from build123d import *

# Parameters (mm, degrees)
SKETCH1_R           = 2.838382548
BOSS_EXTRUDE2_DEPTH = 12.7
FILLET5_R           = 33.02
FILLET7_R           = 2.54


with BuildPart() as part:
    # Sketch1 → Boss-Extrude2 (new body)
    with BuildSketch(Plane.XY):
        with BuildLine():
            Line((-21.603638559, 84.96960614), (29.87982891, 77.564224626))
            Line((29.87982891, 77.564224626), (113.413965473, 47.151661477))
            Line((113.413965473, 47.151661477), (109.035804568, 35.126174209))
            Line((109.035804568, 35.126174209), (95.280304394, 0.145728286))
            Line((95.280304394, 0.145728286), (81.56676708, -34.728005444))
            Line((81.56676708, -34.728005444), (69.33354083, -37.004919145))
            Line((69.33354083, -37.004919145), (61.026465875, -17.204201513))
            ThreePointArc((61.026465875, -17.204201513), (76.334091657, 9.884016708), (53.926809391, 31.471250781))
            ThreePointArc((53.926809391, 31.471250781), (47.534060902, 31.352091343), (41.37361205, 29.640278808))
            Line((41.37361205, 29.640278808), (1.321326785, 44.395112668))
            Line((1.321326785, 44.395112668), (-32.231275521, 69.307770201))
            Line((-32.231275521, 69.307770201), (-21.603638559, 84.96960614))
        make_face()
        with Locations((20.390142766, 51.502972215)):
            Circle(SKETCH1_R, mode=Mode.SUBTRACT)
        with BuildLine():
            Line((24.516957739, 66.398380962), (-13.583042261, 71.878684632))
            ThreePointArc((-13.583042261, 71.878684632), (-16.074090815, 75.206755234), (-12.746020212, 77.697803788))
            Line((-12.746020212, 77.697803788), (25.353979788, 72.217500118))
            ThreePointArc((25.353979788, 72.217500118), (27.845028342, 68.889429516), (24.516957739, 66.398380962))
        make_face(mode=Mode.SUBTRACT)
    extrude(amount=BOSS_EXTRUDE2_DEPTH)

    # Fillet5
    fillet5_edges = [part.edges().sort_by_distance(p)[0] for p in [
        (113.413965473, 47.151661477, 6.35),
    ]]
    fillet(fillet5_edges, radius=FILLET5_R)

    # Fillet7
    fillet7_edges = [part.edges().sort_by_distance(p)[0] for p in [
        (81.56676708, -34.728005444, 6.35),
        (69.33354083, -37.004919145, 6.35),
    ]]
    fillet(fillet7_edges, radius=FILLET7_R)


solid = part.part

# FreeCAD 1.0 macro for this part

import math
import FreeCAD as App
import Part
import Sketcher
from FreeCAD import Vector
Q = App.Units.Quantity


def edges_at(feature, points):
    """Names of the edges that pass closest to the given points."""
    edges = feature.Shape.Edges
    near = lambda p: min(range(len(edges)), key=lambda i: edges[i].distToShape(Part.Vertex(*p))[0])
    return sorted({f"Edge{near(p) + 1}" for p in points})

doc = App.newDocument("Part")
body = doc.addObject("PartDesign::Body", "Body")

# Sketch on XY plane
sketch1 = body.newObject("Sketcher::SketchObject", "Sketch")
sketch1.AttachmentSupport = (doc.getObject("XY_Plane"), [""])
sketch1.MapMode = "FlatFace"
sketch1.addGeometry([
    Part.LineSegment(Vector(29.879829, 77.564225, 0), Vector(-21.603639, 84.969606, 0)),  # 0
    Part.LineSegment(Vector(-21.603639, 84.969606, 0), Vector(-32.231276, 69.30777, 0)),  # 1
    Part.LineSegment(Vector(-32.231276, 69.30777, 0), Vector(1.321327, 44.395113, 0)),  # 2
    Part.LineSegment(Vector(1.321327, 44.395113, 0), Vector(41.373612, 29.640279, 0)),  # 3
    Part.ArcOfCircle(Part.Circle(Vector(51.200039, 6.218039, 0), Vector(0, 0, 1), 25.4), math.radians(83.83724), math.radians(112.759707)),  # 4
    Part.ArcOfCircle(Part.Circle(Vector(51.200039, 6.218039, 0), Vector(0, 0, 1), 25.4), math.radians(-67.240293), math.radians(83.83724)),  # 5
    Part.LineSegment(Vector(61.026466, -17.204202, 0), Vector(69.333541, -37.004919, 0)),  # 6
    Part.LineSegment(Vector(69.333541, -37.004919, 0), Vector(81.566767, -34.728005, 0)),  # 7
    Part.LineSegment(Vector(81.566767, -34.728005, 0), Vector(95.280304, 0.145728, 0)),  # 8
    Part.LineSegment(Vector(95.280304, 0.145728, 0), Vector(109.035805, 35.126174, 0)),  # 9
    Part.LineSegment(Vector(109.035805, 35.126174, 0), Vector(113.413965, 47.151661, 0)),  # 10
    Part.LineSegment(Vector(113.413965, 47.151661, 0), Vector(29.879829, 77.564225, 0)),  # 11
    Part.Circle(Vector(20.390143, 51.502972, 0), Vector(0, 0, 1), 2.838383),  # 12
    Part.LineSegment(Vector(24.516958, 66.398381, 0), Vector(-13.583042, 71.878685, 0)),  # 13
    Part.ArcOfCircle(Part.Circle(Vector(-13.164531, 74.788244, 0), Vector(0, 0, 1), 2.939505), math.radians(81.814718), math.radians(261.814718)),  # 14
    Part.LineSegment(Vector(-12.74602, 77.697804, 0), Vector(25.35398, 72.2175, 0)),  # 15
    Part.ArcOfCircle(Part.Circle(Vector(24.935469, 69.307941, 0), Vector(0, 0, 1), 2.939505), math.radians(-98.185282), math.radians(81.814718)),  # 16
], False)
sketch1.addConstraint([
    Sketcher.Constraint("Coincident", 0, 2, 1, 1),
    Sketcher.Constraint("Coincident", 1, 2, 2, 1),
    Sketcher.Constraint("Coincident", 2, 2, 3, 1),
    Sketcher.Constraint("Coincident", 3, 2, 4, 2),
    Sketcher.Constraint("Coincident", 4, 1, 5, 2),
    Sketcher.Constraint("Coincident", 5, 1, 6, 1),
    Sketcher.Constraint("Coincident", 6, 2, 7, 1),
    Sketcher.Constraint("Coincident", 7, 2, 8, 1),
    Sketcher.Constraint("Coincident", 8, 2, 9, 1),
    Sketcher.Constraint("Coincident", 9, 2, 10, 1),
    Sketcher.Constraint("Coincident", 10, 2, 11, 1),
    Sketcher.Constraint("Coincident", 11, 2, 0, 1),
    Sketcher.Constraint("Coincident", 13, 2, 14, 2),
    Sketcher.Constraint("Coincident", 14, 1, 15, 1),
    Sketcher.Constraint("Coincident", 15, 2, 16, 2),
    Sketcher.Constraint("Coincident", 16, 1, 13, 1),
    Sketcher.Constraint("Coincident", 5, 3, 4, 3),
    Sketcher.Constraint("Radius", 4, Q("1 in")),
    Sketcher.Constraint("DistanceX", 14, 3, 16, 3, Q("1.5 in")),
    Sketcher.Constraint("DistanceX", 14, 1, 15, 2, Q("1.5 in")),
    Sketcher.Constraint("Diameter", 12, Q("5.676765 mm")),
    Sketcher.Constraint("Radius", 14, Q("2.939505 mm")),
    Sketcher.Constraint("Radius", 16, Q("2.939505 mm")),
    Sketcher.Constraint("DistanceY", 16, 1, 11, 2, Q("0.4396001 in")),
    Sketcher.Constraint("DistanceY", 5, 1, -1, 1, Q("17.204202 mm")),
    Sketcher.Constraint("DistanceY", -1, 1, 15, 2, Q("72.2175 mm")),
    Sketcher.Constraint("DistanceY", 4, 3, 16, 3, Q("63.089902 mm")),
    Sketcher.Constraint("DistanceX", 5, 3, 6, 2, Q("18.133502 mm")),
    Sketcher.Constraint("DistanceX", 5, 1, 7, 2, Q("20.540301 mm")),
    Sketcher.Constraint("DistanceX", 8, 2, 9, 2, Q("13.7555 mm")),
    Sketcher.Constraint("Distance", 2, Q("41.790162 mm")),
    Sketcher.Constraint("Distance", 3, Q("42.683611 mm")),
    Sketcher.Constraint("Distance", 6, Q("21.472678 mm")),
    Sketcher.Constraint("Distance", 8, Q("37.473169 mm")),
    Sketcher.Constraint("Distance", 10, Q("12.797681 mm")),
    Sketcher.Constraint("Distance", 11, Q("88.898121 mm")),
    Sketcher.Constraint("DistanceX", -1, 1, 4, 3, Q("51.200039 mm")),
    Sketcher.Constraint("DistanceY", -1, 1, 4, 3, Q("6.218039 mm")),
    Sketcher.Constraint("DistanceX", 14, 3, -1, 1, Q("13.164531 mm")),
    Sketcher.Constraint("DistanceX", 0, 2, -1, 1, Q("21.603639 mm")),
    Sketcher.Constraint("DistanceY", -1, 1, 1, 2, Q("69.30777 mm")),
    Sketcher.Constraint("DistanceY", -1, 1, 3, 2, Q("29.640279 mm")),
    Sketcher.Constraint("DistanceX", -1, 1, 4, 1, Q("53.926809 mm")),
    Sketcher.Constraint("DistanceY", -1, 1, 8, 2, Q("0.145728 mm")),
    Sketcher.Constraint("DistanceY", -1, 1, 10, 2, Q("47.151661 mm")),
    Sketcher.Constraint("DistanceX", -1, 1, 11, 2, Q("29.879829 mm")),
    Sketcher.Constraint("DistanceY", -1, 1, 16, 1, Q("66.398381 mm")),
    Sketcher.Constraint("DistanceY", 12, 3, 14, 3, Q("23.285272 mm")),
    Sketcher.Constraint("DistanceY", 12, 3, 16, 3, Q("17.804968 mm")),
    Sketcher.Constraint("DistanceY", 14, 3, 0, 2, Q("10.181362 mm")),
    Sketcher.Constraint("DistanceX", 0, 2, 12, 3, Q("41.993781 mm")),
    Sketcher.Constraint("DistanceX", 1, 2, 12, 3, Q("52.621418 mm")),
    Sketcher.Constraint("DistanceX", 5, 1, 8, 2, Q("34.253839 mm")),
    Sketcher.Constraint("DistanceX", 13, 2, 14, 3, Q("0.418511 mm")),
])
pad1 = body.newObject("PartDesign::Pad", "Pad")
pad1.Profile = sketch1
pad1.Length = Q("0.5 in")
doc.recompute()

fillet = body.newObject("PartDesign::Fillet", "Fillet")
fillet.Base = (pad1, edges_at(pad1, [(113.414, 47.152, 6.35)]))
fillet.Radius = Q("1.3 in")
doc.recompute()

fillet2 = body.newObject("PartDesign::Fillet", "Fillet001")
fillet2.Base = (fillet, edges_at(fillet, [(81.567, -34.728, 6.35), (69.334, -37.005, 6.35)]))
fillet2.Radius = Q("0.1 in")

doc.recompute()
